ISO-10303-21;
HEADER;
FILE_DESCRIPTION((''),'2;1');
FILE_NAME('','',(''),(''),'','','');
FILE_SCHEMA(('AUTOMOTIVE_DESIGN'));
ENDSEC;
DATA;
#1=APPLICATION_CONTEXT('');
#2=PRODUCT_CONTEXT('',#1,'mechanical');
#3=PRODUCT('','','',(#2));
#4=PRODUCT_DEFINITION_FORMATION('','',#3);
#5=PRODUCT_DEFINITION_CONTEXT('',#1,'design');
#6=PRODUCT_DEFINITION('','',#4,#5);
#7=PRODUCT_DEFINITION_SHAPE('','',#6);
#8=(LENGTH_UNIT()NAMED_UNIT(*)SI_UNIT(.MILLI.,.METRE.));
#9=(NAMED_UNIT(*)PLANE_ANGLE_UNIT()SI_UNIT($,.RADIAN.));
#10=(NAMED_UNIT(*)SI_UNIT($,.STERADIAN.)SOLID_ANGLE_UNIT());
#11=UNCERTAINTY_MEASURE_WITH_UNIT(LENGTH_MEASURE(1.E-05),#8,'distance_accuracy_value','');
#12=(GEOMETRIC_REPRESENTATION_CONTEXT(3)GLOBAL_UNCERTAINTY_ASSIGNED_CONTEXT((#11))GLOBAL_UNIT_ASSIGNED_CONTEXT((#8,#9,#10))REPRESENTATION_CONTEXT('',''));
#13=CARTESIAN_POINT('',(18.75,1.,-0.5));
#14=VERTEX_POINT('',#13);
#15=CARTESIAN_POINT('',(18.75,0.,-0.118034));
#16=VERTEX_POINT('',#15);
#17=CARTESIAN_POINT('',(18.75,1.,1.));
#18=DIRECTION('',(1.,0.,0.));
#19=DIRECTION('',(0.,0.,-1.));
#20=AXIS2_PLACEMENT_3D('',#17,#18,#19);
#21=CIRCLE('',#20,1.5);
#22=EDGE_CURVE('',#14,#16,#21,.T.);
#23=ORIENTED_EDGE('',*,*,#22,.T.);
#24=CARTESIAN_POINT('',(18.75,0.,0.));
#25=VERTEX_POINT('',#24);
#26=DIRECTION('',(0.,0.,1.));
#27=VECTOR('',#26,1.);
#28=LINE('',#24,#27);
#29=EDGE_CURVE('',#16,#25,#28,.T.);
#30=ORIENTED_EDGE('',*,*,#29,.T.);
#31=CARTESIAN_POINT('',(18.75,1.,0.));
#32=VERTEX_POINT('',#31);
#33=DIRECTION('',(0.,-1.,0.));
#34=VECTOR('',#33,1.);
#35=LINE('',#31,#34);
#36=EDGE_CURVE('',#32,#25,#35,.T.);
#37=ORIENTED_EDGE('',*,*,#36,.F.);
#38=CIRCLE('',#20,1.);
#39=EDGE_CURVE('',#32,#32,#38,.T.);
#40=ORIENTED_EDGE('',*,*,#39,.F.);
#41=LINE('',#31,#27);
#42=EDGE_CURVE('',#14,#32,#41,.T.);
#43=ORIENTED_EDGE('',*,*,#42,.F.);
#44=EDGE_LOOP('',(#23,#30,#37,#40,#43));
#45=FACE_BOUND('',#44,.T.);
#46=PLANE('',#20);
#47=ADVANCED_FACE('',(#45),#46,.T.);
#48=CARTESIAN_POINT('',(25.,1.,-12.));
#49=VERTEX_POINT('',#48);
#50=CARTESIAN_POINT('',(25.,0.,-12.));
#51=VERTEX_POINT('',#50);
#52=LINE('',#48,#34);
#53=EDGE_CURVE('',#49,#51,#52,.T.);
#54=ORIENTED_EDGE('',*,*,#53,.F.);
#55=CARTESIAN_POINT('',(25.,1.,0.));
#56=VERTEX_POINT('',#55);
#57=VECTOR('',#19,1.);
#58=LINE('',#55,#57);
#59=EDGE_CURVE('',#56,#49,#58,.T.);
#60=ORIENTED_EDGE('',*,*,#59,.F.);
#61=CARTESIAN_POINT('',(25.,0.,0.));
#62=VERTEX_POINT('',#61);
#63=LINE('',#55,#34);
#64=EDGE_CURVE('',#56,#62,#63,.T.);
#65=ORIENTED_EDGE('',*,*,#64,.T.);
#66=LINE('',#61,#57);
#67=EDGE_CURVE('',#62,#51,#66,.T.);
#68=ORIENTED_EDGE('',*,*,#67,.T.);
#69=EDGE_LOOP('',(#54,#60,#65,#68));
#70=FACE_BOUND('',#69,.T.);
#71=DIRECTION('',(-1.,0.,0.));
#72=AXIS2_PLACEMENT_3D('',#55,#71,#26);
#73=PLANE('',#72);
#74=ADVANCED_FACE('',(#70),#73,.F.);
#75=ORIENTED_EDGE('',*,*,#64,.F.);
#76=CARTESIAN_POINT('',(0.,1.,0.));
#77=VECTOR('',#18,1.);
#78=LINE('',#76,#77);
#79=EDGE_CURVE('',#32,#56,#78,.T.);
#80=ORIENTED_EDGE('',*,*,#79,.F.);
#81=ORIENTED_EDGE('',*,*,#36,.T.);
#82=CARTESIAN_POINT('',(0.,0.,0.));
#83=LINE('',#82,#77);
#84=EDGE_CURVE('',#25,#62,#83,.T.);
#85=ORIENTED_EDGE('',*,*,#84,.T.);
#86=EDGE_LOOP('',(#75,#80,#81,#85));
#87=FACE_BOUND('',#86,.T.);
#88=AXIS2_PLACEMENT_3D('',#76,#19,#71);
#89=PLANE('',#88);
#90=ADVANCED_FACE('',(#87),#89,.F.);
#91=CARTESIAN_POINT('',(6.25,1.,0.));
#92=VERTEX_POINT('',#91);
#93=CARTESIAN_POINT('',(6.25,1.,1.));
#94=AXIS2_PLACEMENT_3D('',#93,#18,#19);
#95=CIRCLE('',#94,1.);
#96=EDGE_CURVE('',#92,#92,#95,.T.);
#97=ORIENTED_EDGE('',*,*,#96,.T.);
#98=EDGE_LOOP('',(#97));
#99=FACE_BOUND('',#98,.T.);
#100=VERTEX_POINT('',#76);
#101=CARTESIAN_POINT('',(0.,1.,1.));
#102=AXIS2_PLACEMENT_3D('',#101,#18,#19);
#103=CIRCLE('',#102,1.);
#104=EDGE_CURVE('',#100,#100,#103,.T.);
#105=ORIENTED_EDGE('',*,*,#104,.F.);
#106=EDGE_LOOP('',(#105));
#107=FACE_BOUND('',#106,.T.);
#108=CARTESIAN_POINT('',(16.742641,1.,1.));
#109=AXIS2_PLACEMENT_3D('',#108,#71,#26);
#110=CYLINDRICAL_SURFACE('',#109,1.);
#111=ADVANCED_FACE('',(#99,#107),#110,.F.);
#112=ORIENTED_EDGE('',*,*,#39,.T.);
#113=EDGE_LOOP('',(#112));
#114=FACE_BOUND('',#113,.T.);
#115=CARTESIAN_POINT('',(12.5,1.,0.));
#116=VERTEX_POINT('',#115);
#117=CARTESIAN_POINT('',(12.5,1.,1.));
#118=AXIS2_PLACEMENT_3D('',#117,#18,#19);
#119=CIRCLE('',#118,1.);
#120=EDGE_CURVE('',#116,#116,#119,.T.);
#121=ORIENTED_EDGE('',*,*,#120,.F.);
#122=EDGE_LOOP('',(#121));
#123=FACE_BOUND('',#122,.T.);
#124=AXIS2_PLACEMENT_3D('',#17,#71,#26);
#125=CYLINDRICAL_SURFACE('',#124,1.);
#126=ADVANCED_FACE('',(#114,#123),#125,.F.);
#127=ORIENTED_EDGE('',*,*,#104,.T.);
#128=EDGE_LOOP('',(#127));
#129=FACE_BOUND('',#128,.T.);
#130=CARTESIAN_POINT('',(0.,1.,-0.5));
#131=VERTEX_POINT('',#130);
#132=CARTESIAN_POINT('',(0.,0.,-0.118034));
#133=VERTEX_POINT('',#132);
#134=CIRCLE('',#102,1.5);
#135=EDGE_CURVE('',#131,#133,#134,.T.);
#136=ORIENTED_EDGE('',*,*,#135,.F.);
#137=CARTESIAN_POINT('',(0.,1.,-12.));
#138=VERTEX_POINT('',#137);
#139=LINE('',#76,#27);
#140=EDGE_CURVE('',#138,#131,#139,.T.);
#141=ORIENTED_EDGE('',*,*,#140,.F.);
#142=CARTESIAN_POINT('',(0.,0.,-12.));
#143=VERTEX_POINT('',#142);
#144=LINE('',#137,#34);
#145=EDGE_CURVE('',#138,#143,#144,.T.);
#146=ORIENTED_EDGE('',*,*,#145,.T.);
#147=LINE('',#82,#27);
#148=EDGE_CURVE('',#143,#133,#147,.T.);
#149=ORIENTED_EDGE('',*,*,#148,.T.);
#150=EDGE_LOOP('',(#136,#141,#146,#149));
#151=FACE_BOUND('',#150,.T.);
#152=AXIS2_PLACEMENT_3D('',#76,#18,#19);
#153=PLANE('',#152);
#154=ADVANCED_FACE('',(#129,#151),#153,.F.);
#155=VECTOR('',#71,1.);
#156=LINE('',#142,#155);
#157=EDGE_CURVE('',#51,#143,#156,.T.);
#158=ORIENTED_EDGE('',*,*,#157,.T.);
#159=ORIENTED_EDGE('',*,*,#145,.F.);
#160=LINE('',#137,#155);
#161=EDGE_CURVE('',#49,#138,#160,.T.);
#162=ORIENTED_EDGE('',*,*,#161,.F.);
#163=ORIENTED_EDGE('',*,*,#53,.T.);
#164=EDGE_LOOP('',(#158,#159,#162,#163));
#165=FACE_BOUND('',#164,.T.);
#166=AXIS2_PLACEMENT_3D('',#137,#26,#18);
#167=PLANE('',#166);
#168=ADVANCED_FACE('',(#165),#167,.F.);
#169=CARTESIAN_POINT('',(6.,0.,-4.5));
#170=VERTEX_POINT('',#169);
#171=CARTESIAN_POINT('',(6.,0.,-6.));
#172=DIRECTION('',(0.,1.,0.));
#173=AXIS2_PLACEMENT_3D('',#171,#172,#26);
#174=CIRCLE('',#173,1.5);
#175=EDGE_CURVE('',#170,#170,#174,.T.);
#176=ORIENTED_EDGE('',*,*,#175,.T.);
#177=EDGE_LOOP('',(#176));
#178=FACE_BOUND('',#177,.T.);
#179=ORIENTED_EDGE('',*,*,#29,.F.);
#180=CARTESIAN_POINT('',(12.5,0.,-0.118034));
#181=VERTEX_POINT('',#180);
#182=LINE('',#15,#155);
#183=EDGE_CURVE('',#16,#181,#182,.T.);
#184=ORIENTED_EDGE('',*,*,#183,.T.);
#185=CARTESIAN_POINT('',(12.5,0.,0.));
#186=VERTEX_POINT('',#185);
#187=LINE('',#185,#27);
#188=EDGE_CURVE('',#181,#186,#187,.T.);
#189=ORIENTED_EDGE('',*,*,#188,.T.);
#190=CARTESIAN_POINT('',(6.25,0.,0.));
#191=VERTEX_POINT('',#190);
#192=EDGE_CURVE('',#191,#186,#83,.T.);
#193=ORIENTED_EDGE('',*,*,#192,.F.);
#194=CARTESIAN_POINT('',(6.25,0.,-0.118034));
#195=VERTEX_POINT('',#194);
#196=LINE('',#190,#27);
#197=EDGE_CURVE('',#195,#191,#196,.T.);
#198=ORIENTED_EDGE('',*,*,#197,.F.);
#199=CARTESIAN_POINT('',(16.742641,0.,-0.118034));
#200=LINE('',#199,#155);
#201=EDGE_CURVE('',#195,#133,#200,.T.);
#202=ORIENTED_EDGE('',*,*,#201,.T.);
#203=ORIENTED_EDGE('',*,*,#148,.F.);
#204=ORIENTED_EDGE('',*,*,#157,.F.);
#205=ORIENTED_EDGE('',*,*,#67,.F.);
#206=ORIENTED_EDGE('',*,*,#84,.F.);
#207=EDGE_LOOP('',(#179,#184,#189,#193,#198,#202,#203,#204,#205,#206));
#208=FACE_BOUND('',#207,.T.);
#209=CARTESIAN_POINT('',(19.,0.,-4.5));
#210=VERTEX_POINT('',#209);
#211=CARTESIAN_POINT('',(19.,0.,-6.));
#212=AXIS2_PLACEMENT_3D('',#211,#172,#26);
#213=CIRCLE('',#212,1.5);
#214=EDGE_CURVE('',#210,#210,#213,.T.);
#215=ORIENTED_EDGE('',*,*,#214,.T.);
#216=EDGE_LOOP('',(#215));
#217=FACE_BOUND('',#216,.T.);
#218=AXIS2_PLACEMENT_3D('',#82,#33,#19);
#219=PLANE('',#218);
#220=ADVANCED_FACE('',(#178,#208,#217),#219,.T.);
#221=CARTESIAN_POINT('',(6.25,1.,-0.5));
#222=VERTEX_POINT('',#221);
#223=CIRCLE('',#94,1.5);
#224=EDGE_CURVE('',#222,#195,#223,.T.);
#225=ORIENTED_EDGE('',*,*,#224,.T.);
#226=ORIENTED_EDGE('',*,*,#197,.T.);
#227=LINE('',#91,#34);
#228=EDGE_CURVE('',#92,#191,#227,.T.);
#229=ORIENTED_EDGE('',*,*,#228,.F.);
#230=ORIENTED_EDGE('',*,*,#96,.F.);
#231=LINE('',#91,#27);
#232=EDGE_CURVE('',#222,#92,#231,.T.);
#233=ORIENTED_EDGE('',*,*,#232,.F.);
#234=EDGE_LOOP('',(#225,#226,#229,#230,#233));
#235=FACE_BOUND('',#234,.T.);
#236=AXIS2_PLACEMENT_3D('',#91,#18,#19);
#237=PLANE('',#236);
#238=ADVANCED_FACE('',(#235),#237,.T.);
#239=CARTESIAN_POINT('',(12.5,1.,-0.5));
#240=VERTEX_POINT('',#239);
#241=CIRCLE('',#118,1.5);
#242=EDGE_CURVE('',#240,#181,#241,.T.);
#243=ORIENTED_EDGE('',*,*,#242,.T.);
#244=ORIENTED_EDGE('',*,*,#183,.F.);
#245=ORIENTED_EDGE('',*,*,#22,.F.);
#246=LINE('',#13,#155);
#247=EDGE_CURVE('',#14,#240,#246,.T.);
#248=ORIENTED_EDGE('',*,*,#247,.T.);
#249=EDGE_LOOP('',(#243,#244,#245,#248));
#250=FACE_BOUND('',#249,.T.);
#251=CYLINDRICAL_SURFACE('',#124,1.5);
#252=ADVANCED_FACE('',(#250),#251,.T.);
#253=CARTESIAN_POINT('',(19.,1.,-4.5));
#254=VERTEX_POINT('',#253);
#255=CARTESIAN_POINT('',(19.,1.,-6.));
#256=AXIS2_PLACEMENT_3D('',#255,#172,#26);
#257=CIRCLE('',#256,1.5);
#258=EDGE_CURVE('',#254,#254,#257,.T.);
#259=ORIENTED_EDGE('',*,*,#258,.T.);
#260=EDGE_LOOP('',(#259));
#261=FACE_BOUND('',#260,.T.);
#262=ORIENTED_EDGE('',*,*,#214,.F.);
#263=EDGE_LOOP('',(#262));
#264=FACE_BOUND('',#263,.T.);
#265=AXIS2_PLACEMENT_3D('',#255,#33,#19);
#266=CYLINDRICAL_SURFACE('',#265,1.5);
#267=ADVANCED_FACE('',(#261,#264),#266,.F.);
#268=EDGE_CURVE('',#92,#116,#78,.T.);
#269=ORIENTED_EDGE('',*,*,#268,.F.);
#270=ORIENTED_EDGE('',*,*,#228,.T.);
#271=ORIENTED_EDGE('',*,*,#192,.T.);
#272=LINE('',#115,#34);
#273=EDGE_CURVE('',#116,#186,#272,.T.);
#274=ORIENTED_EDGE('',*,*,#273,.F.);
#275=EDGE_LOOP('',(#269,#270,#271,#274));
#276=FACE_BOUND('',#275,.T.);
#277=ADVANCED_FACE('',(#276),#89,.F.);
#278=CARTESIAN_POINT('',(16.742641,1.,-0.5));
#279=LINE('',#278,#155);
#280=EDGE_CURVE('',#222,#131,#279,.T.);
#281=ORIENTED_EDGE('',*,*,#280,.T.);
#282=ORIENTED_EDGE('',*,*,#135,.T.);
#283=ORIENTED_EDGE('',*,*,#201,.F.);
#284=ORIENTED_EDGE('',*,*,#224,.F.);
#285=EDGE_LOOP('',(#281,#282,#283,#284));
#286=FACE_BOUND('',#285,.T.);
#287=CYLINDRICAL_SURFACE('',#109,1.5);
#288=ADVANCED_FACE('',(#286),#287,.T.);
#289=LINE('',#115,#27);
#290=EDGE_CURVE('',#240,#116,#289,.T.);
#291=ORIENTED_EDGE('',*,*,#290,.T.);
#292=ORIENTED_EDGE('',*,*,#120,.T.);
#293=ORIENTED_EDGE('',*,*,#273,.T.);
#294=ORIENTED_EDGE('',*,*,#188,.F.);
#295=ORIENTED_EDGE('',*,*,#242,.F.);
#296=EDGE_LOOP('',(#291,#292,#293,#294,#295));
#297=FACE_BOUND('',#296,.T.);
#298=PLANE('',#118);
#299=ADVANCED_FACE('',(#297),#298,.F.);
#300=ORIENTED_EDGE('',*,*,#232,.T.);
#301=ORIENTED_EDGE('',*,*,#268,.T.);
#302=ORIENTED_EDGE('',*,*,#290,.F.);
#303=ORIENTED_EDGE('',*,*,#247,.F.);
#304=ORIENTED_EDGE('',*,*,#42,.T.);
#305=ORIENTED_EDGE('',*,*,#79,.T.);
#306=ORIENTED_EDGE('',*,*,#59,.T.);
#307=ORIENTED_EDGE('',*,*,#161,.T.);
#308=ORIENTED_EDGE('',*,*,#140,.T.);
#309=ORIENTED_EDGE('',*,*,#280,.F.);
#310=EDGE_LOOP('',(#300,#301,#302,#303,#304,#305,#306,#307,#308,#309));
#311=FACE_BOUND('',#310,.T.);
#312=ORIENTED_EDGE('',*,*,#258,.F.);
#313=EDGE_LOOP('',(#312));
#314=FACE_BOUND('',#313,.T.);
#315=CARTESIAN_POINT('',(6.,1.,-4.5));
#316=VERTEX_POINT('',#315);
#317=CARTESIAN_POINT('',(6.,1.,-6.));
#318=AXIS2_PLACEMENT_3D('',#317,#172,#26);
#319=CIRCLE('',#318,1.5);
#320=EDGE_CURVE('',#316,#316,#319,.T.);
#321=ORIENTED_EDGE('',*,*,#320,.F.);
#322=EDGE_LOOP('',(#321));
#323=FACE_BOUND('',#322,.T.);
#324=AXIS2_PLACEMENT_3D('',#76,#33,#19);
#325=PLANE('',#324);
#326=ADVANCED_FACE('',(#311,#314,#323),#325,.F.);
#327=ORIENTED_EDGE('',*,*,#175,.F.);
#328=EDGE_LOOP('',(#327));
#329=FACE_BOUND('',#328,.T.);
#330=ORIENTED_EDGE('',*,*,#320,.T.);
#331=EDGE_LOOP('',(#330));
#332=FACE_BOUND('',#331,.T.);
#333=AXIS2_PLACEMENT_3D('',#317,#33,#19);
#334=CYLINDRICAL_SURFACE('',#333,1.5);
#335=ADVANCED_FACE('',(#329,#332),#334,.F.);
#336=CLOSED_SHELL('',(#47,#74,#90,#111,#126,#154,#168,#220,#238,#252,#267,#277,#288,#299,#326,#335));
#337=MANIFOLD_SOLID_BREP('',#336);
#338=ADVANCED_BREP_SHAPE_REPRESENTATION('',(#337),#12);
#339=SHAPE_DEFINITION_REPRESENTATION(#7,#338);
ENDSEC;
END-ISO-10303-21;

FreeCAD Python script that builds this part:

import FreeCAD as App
import Part
import Sketcher

doc = App.newDocument("Part")
body = doc.addObject("PartDesign::Body", "Body")

# Sketch on XZ plane
sketch1 = doc.addObject("Sketcher::SketchObject", "Sketch")
body.addObject(sketch1)
sketch1.AttachmentSupport = (doc.XZ_Plane, [""])
sketch1.MapMode = "FlatFace"
sketch1.addGeometry([
    Part.LineSegment(App.Vector(0, -12, 0), App.Vector(0, 0, 0)),  # 0
    Part.LineSegment(App.Vector(0, 0, 0), App.Vector(25, 0, 0)),  # 1
    Part.LineSegment(App.Vector(25, 0, 0), App.Vector(25, -12, 0)),  # 2
    Part.LineSegment(App.Vector(25, -12, 0), App.Vector(0, -12, 0)),  # 3
    Part.Circle(App.Vector(6, -6, 0), App.Vector(0, 0, 1), 1.5),  # 4
    Part.Circle(App.Vector(19, -6, 0), App.Vector(0, 0, 1), 1.5),  # 5
], False)
sketch1.addConstraint([
    Sketcher.Constraint("Coincident", 0, 2, 1, 1),
    Sketcher.Constraint("Coincident", 1, 2, 2, 1),
    Sketcher.Constraint("Coincident", 2, 2, 3, 1),
    Sketcher.Constraint("Coincident", 3, 2, 0, 1),
    Sketcher.Constraint("Vertical", 0),
    Sketcher.Constraint("Horizontal", 1),
    Sketcher.Constraint("Vertical", 2),
    Sketcher.Constraint("Horizontal", 3),
    Sketcher.Constraint("Coincident", 0, 2, -1, 1),
    Sketcher.Constraint("Equal", 4, 5),
    Sketcher.Constraint("Horizontal", 4, 3, 5, 3),
    Sketcher.Constraint("Diameter", 4, 3.0),
    Sketcher.Constraint("DistanceX", 1, 1, 1, 2, 25.0),
    Sketcher.Constraint("DistanceY", 0, 1, 0, 2, 12.0),
    Sketcher.Constraint("DistanceX", -1, 1, 4, 3, 6.0),
    Sketcher.Constraint("DistanceY", 4, 3, -1, 1, 6.0),
    Sketcher.Constraint("DistanceX", -1, 1, 5, 3, 19.0),
])
pad1 = doc.addObject("PartDesign::Pad", "Pad")
body.addObject(pad1)
pad1.Profile = sketch1
pad1.Length = 1
pad1.Reversed = True

# Sketch on YZ plane
sketch2 = doc.addObject("Sketcher::SketchObject", "Sketch001")
body.addObject(sketch2)
sketch2.AttachmentSupport = (doc.YZ_Plane, [""])
sketch2.MapMode = "FlatFace"
sketch2.addGeometry([
    Part.Circle(App.Vector(1, 1, 0), App.Vector(0, 0, 1), 1.5),
    Part.Circle(App.Vector(1, 1, 0), App.Vector(0, 0, 1), 1),
], False)
sketch2.addConstraint([
    Sketcher.Constraint("Coincident", 1, 3, 0, 3),
    Sketcher.Constraint("Diameter", 0, 3.0),
    Sketcher.Constraint("Diameter", 1, 2.0),
    Sketcher.Constraint("DistanceX", -1, 1, 0, 3, 1.0),
    Sketcher.Constraint("DistanceY", -1, 1, 0, 3, 1.0),
])
pad2 = doc.addObject("PartDesign::Pad", "Pad001")
body.addObject(pad2)
pad2.Profile = sketch2
pad2.Length = 6.25

# Sketch on YZ plane
sketch3 = doc.addObject("Sketcher::SketchObject", "Sketch002")
body.addObject(sketch3)
sketch3.AttachmentSupport = (doc.YZ_Plane, [""])
sketch3.MapMode = "FlatFace"
sketch3.AttachmentOffset = App.Placement(App.Vector(0, 0, 12.5), App.Rotation())
sketch3.addGeometry([
    Part.Circle(App.Vector(1, 1, 0), App.Vector(0, 0, 1), 1.5),
    Part.Circle(App.Vector(1, 1, 0), App.Vector(0, 0, 1), 1),
], False)
sketch3.addConstraint([
    Sketcher.Constraint("Coincident", 1, 3, 0, 3),
    Sketcher.Constraint("Diameter", 0, 3.0),
    Sketcher.Constraint("Diameter", 1, 2.0),
    Sketcher.Constraint("DistanceX", -1, 1, 0, 3, 1.0),
    Sketcher.Constraint("DistanceY", -1, 1, 0, 3, 1.0),
])
pad3 = doc.addObject("PartDesign::Pad", "Pad002")
body.addObject(pad3)
pad3.Profile = sketch3
pad3.Length = 6.25

doc.recompute()
